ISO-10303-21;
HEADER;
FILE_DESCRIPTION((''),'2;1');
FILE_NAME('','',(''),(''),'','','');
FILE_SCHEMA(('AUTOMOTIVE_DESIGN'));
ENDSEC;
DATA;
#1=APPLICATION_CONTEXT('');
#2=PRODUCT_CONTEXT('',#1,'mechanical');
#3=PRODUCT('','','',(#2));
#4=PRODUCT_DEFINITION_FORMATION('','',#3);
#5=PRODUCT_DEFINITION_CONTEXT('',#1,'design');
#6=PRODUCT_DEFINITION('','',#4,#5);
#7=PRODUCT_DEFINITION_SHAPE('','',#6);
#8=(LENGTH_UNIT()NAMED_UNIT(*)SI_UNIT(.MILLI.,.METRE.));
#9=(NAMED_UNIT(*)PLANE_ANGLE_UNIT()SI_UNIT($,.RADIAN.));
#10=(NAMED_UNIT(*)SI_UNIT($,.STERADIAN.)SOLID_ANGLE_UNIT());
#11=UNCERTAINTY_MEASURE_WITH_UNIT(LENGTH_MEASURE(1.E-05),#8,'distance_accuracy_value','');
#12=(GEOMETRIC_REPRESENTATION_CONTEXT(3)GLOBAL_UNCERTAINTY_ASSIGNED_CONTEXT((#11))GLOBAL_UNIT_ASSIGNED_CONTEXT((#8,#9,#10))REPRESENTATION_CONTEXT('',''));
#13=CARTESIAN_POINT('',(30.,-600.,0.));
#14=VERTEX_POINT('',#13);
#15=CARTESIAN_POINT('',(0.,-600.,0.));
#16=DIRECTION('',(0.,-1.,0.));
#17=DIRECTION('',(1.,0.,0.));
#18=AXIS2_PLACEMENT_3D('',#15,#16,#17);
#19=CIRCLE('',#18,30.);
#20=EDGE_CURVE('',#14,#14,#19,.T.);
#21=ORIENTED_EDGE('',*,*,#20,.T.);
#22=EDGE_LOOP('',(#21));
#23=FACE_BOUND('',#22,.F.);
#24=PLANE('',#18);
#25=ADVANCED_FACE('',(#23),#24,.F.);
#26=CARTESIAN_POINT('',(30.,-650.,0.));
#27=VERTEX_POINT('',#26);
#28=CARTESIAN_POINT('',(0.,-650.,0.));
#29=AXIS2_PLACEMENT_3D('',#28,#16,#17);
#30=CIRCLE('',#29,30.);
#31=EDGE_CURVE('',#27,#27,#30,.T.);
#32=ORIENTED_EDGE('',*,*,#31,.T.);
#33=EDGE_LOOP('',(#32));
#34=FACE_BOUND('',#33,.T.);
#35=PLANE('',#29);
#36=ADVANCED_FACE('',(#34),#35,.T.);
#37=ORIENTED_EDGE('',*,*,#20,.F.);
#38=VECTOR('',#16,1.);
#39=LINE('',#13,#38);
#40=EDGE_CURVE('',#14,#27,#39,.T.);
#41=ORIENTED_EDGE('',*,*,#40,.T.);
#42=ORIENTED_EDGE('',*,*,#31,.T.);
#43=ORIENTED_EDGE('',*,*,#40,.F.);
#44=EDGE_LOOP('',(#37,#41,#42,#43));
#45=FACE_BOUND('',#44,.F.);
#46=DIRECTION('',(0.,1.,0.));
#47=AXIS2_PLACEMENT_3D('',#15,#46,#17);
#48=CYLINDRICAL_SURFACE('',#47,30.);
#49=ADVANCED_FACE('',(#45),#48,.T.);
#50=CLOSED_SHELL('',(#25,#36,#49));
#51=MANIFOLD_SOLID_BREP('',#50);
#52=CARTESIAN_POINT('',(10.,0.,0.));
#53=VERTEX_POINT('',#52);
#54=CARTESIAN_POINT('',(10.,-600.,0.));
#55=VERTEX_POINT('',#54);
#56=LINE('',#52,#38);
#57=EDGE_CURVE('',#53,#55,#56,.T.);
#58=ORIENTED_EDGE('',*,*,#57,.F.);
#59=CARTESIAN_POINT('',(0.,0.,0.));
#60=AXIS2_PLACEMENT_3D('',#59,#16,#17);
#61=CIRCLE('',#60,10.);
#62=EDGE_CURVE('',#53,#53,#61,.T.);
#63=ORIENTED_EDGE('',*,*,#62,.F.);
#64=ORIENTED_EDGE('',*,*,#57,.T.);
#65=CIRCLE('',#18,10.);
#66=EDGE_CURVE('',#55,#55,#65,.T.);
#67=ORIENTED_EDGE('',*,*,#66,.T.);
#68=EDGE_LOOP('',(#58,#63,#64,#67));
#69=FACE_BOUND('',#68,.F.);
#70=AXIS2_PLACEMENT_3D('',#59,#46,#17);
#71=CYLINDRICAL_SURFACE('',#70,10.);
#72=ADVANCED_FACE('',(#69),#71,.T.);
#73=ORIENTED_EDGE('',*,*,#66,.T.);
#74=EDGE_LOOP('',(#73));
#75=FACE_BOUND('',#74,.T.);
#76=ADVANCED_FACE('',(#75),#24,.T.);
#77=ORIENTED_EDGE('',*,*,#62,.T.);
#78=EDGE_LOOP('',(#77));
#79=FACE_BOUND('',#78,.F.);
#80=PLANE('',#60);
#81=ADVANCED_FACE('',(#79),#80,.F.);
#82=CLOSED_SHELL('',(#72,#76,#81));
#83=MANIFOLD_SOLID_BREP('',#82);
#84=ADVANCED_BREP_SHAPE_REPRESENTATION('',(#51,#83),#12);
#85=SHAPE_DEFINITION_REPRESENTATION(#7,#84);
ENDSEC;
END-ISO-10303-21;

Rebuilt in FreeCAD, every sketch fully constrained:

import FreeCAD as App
import Part
import Sketcher
Q = App.Units.Quantity

doc = App.newDocument("Part")
body = doc.addObject("PartDesign::Body", "Body")

sketch1 = body.newObject("Sketcher::SketchObject", "Sketch")
sketch1.AttachmentSupport = (doc.getObject("XZ_Plane"), [""])
sketch1.MapMode = "FlatFace"
sketch1.addGeometry(Part.Circle(App.Vector(0, 0, 0), App.Vector(0, 0, 1), 10), False)
sketch1.addConstraint(Sketcher.Constraint("Coincident", 0, 3, -1, 1))
sketch1.addConstraint(Sketcher.Constraint("Diameter", 0, Q("20 mm")))
pad1 = body.newObject("PartDesign::Pad", "Pad")
pad1.Profile = sketch1
pad1.Length = 600
body2 = doc.addObject("PartDesign::Body", "Body001")

sketch2 = body2.newObject("Sketcher::SketchObject", "Sketch001")
sketch2.AttachmentSupport = (doc.getObject("XZ_Plane001"), [""])
sketch2.MapMode = "FlatFace"
sketch2.AttachmentOffset = App.Placement(App.Vector(0, 0, 600), App.Rotation())
sketch2.addGeometry(Part.Circle(App.Vector(0, 0, 0), App.Vector(0, 0, 1), 30), False)
sketch2.addConstraint(Sketcher.Constraint("Coincident", 0, 3, -1, 1))
sketch2.addConstraint(Sketcher.Constraint("Diameter", 0, Q("60 mm")))
pad2 = body2.newObject("PartDesign::Pad", "Pad001")
pad2.Profile = sketch2
pad2.Length = 50

doc.recompute()
